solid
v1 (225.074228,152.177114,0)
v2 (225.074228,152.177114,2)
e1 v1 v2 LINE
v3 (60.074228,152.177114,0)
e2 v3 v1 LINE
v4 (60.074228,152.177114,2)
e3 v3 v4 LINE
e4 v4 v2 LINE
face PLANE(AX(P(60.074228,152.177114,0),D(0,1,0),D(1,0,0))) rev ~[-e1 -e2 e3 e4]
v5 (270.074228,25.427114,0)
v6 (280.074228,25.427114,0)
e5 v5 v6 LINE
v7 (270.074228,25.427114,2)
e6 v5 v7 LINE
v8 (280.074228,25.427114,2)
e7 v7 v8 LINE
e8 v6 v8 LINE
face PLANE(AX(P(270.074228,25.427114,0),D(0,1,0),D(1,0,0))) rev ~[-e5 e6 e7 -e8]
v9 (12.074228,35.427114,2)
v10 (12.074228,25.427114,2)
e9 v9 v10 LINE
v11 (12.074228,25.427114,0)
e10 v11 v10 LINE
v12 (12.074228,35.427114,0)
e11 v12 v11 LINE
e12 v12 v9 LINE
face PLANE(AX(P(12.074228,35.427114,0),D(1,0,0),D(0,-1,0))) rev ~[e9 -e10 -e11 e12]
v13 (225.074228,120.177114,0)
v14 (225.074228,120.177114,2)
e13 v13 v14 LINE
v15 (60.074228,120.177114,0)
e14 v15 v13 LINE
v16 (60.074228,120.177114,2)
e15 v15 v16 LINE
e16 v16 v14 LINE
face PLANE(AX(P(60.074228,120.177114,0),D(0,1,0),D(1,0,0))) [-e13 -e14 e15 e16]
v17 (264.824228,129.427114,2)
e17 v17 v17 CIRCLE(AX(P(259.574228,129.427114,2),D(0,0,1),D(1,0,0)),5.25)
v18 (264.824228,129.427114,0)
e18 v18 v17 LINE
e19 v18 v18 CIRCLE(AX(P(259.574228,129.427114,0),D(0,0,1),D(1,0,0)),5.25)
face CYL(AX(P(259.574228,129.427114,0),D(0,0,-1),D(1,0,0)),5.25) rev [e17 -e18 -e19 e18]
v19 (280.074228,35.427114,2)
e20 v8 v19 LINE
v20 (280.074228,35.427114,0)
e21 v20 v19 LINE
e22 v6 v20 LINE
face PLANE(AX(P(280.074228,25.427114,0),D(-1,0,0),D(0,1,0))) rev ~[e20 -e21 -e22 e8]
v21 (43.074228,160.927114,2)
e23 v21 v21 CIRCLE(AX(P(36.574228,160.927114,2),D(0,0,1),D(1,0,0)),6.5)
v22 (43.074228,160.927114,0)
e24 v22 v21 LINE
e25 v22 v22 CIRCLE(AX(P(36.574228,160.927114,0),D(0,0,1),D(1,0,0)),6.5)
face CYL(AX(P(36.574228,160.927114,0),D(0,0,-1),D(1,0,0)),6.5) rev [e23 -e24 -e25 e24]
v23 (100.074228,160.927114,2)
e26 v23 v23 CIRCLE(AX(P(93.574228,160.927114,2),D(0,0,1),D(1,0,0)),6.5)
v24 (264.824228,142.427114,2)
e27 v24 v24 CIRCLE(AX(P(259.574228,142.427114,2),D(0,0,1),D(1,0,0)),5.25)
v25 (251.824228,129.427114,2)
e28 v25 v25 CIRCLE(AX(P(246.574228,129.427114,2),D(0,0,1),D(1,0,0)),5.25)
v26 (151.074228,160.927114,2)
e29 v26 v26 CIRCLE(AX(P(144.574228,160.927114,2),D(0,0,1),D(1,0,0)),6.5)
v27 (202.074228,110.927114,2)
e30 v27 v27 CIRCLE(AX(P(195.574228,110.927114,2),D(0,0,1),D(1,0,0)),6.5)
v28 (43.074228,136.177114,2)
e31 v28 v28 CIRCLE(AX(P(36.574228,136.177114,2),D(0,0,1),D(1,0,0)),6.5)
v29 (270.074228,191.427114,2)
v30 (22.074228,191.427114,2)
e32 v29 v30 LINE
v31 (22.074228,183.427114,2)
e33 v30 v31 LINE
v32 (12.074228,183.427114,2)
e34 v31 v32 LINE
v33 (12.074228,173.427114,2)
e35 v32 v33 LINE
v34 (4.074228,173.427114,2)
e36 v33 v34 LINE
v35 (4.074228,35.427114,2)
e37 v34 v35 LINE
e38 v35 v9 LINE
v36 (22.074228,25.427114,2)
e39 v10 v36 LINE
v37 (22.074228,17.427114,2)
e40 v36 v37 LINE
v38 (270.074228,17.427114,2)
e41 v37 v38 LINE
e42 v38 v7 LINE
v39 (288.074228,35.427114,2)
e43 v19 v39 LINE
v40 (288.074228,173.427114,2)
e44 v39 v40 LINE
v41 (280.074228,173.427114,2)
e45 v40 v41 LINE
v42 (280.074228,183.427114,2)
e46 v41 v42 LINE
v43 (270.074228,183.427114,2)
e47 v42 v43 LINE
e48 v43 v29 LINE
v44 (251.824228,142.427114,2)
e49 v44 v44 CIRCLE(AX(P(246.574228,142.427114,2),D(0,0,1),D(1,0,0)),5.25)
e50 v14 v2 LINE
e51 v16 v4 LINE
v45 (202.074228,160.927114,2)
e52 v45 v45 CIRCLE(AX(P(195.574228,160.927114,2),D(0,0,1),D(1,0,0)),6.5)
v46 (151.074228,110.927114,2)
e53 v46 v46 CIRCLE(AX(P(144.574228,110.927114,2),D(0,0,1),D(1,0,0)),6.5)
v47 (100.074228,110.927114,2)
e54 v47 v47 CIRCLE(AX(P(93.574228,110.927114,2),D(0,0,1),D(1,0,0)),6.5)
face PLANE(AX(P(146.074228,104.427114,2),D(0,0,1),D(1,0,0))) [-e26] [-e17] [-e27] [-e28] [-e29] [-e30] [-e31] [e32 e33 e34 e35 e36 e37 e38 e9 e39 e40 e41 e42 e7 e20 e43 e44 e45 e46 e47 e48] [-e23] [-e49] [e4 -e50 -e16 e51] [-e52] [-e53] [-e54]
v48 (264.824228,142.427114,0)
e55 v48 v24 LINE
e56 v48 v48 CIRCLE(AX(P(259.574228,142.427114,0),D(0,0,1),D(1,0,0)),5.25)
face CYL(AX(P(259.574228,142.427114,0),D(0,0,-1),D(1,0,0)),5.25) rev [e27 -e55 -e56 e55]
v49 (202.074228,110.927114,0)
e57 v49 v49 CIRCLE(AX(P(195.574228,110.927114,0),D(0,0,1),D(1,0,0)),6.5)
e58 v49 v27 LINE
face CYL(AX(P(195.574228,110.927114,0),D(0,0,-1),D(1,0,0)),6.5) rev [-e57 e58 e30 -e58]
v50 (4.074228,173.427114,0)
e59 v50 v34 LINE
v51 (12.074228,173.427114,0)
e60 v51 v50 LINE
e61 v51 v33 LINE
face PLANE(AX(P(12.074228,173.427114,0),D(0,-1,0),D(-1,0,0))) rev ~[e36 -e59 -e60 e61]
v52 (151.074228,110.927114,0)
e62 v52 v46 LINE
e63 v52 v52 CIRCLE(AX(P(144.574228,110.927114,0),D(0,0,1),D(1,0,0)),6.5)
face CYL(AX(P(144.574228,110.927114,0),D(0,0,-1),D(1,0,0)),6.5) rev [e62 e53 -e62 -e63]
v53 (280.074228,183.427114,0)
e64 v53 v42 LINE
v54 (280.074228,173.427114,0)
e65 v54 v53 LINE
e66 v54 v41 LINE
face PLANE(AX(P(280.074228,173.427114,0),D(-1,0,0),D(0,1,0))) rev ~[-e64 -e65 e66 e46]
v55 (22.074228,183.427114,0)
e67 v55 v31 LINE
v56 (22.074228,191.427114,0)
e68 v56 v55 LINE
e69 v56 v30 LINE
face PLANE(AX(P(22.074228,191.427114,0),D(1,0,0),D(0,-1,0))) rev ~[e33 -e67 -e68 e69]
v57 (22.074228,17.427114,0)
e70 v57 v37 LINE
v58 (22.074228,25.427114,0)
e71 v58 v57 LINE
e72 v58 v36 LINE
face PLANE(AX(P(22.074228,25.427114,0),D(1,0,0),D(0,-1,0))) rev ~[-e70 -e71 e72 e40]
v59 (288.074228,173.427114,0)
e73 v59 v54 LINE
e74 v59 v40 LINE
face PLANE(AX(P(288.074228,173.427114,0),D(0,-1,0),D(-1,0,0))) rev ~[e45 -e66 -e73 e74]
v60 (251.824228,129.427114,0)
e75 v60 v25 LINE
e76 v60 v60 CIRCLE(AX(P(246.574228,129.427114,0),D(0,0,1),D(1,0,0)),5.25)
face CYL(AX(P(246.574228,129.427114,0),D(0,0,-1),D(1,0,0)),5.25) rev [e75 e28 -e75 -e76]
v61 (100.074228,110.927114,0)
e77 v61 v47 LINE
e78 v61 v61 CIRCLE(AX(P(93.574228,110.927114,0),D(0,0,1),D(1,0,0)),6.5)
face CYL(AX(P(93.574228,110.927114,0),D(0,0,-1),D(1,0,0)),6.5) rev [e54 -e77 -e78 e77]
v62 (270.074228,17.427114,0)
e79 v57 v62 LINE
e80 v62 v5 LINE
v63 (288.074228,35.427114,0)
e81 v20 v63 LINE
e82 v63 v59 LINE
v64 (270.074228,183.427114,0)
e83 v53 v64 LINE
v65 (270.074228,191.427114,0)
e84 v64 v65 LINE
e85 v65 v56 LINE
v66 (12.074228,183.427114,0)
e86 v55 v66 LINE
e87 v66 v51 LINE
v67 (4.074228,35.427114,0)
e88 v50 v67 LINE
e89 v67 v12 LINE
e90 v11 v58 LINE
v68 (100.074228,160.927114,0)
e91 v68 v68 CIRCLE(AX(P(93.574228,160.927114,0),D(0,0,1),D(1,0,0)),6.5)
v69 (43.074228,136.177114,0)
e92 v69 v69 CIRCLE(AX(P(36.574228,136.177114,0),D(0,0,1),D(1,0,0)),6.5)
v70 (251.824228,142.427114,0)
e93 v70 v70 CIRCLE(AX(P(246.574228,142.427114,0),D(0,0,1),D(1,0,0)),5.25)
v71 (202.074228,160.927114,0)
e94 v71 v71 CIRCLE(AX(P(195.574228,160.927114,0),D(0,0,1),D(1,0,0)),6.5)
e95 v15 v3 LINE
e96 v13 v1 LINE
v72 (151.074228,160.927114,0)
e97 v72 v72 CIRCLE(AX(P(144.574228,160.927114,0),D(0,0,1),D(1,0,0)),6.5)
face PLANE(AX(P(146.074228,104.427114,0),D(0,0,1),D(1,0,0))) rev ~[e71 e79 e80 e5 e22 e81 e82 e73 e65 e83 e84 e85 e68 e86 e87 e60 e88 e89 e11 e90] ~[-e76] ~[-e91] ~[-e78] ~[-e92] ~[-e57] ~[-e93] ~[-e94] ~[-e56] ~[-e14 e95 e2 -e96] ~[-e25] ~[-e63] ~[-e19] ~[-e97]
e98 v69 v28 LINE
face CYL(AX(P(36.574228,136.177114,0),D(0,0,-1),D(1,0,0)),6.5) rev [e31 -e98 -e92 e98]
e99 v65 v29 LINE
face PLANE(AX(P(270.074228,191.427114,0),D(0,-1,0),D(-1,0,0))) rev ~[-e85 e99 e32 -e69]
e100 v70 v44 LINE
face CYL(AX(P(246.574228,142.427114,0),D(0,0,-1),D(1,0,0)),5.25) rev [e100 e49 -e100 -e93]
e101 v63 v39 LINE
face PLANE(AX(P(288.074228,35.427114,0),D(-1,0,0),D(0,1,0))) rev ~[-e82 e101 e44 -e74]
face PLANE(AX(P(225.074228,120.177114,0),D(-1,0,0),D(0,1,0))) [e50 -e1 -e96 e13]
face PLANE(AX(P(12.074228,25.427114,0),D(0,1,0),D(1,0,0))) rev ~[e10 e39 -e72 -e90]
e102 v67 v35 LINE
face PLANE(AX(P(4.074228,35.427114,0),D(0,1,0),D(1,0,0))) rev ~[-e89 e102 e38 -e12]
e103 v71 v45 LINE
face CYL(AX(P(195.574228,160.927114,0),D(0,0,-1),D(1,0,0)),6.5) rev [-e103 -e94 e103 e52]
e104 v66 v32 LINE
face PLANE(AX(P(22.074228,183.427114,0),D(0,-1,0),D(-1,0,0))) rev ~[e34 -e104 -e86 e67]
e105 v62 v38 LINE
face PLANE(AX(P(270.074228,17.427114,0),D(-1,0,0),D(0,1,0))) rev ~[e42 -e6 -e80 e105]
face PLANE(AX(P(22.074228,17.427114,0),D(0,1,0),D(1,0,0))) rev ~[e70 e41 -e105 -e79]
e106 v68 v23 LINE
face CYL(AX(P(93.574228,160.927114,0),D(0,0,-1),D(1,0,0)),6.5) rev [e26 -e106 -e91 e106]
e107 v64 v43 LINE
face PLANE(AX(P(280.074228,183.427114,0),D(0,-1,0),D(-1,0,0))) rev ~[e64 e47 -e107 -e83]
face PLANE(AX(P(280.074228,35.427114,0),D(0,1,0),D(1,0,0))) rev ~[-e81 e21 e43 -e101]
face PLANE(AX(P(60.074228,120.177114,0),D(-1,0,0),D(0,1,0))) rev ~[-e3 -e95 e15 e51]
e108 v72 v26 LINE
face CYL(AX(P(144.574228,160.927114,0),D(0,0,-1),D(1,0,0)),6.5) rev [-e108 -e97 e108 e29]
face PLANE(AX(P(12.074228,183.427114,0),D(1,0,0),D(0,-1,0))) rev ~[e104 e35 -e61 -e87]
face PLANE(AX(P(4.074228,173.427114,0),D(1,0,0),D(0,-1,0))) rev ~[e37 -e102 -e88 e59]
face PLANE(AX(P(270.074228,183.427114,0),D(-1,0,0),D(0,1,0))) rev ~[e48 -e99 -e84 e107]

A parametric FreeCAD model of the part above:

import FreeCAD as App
import Part
import Sketcher

V = App.Vector
Q = App.Units.Quantity


def add_polygon(sketch, points):
    """Adds a closed chain of lines whose ends are joined by coincident constraints."""
    first, n = sketch.GeometryCount, len(points)
    for a, b in zip(points, points[1:] + points[:1]):
        sketch.addGeometry(Part.LineSegment(App.Vector(*a, 0), App.Vector(*b, 0)), False)
    for i in range(n):
        sketch.addConstraint(Sketcher.Constraint("Coincident", first + i, 2, first + (i + 1) % n, 1))

doc = App.newDocument("Part")
body = doc.addObject("PartDesign::Body", "Body")

sketch1 = body.newObject("Sketcher::SketchObject", "Sketch")
sketch1.AttachmentSupport = (doc.getObject("XY_Plane"), [""])
sketch1.MapMode = "FlatFace"
add_polygon(sketch1, [(270.074228, 25.427114), (280.074228, 25.427114), (280.074228, 35.427114), (288.074228, 35.427114), (288.074228, 173.427114), (280.074228, 173.427114), (280.074228, 183.427114), (270.074228, 183.427114), (270.074228, 191.427114), (22.074228, 191.427114), (22.074228, 183.427114), (12.074228, 183.427114), (12.074228, 173.427114), (4.074228, 173.427114), (4.074228, 35.427114), (12.074228, 35.427114), (12.074228, 25.427114), (22.074228, 25.427114), (22.074228, 17.427114), (270.074228, 17.427114)])
sketch1.addGeometry(Part.Circle(V(93.574228, 110.927114, 0), V(0, 0, 1), 6.5), False)
sketch1.addGeometry(Part.Circle(V(144.574228, 110.927114, 0), V(0, 0, 1), 6.5), False)
sketch1.addGeometry(Part.Circle(V(195.574228, 110.927114, 0), V(0, 0, 1), 6.5), False)
sketch1.addGeometry(Part.Circle(V(246.574228, 129.427114, 0), V(0, 0, 1), 5.25), False)
sketch1.addGeometry(Part.Circle(V(259.574228, 129.427114, 0), V(0, 0, 1), 5.25), False)
sketch1.addGeometry(Part.Circle(V(36.574228, 136.177114, 0), V(0, 0, 1), 6.5), False)
add_polygon(sketch1, [(225.074228, 120.177114), (60.074228, 120.177114), (60.074228, 152.177114), (225.074228, 152.177114)])
sketch1.addGeometry(Part.Circle(V(36.574228, 160.927114, 0), V(0, 0, 1), 6.5), False)
sketch1.addGeometry(Part.Circle(V(93.574228, 160.927114, 0), V(0, 0, 1), 6.5), False)
sketch1.addGeometry(Part.Circle(V(144.574228, 160.927114, 0), V(0, 0, 1), 6.5), False)
sketch1.addGeometry(Part.Circle(V(246.574228, 142.427114, 0), V(0, 0, 1), 5.25), False)
sketch1.addGeometry(Part.Circle(V(259.574228, 142.427114, 0), V(0, 0, 1), 5.25), False)
sketch1.addGeometry(Part.Circle(V(195.574228, 160.927114, 0), V(0, 0, 1), 6.5), False)
sketch1.addConstraint([
    Sketcher.Constraint("Horizontal", 0),
    Sketcher.Constraint("Vertical", 1),
    Sketcher.Constraint("Horizontal", 2),
    Sketcher.Constraint("Vertical", 3),
    Sketcher.Constraint("Horizontal", 4),
    Sketcher.Constraint("Vertical", 5),
    Sketcher.Constraint("Horizontal", 6),
    Sketcher.Constraint("Vertical", 7),
    Sketcher.Constraint("Horizontal", 8),
    Sketcher.Constraint("Vertical", 9),
    Sketcher.Constraint("Horizontal", 10),
    Sketcher.Constraint("Vertical", 11),
    Sketcher.Constraint("Horizontal", 12),
    Sketcher.Constraint("Vertical", 13),
    Sketcher.Constraint("Horizontal", 14),
    Sketcher.Constraint("Vertical", 15),
    Sketcher.Constraint("Horizontal", 16),
    Sketcher.Constraint("Vertical", 17),
    Sketcher.Constraint("Horizontal", 18),
    Sketcher.Constraint("Vertical", 19),
    Sketcher.Constraint("Horizontal", 26),
    Sketcher.Constraint("Vertical", 27),
    Sketcher.Constraint("Horizontal", 28),
    Sketcher.Constraint("Vertical", 29),
    Sketcher.Constraint("Equal", 20, 21),
    Sketcher.Constraint("Equal", 21, 22),
    Sketcher.Constraint("Equal", 23, 24),
    Sketcher.Constraint("Equal", 22, 25),
    Sketcher.Constraint("Equal", 25, 30),
    Sketcher.Constraint("Equal", 30, 31),
    Sketcher.Constraint("Equal", 31, 32),
    Sketcher.Constraint("Equal", 24, 33),
    Sketcher.Constraint("Equal", 33, 34),
    Sketcher.Constraint("Equal", 32, 35),
    Sketcher.Constraint("Horizontal", 20, 3, 21, 3),
    Sketcher.Constraint("Horizontal", 21, 3, 22, 3),
    Sketcher.Constraint("Horizontal", 23, 3, 24, 3),
    Sketcher.Constraint("Horizontal", 30, 3, 31, 3),
    Sketcher.Constraint("Horizontal", 31, 3, 32, 3),
    Sketcher.Constraint("Horizontal", 33, 3, 34, 3),
    Sketcher.Constraint("Horizontal", 32, 3, 35, 3),
    Sketcher.Constraint("Horizontal", 6, 2, 9, 2),
    Sketcher.Constraint("Horizontal", 4, 2, 11, 2),
    Sketcher.Constraint("Horizontal", 2, 2, 13, 2),
    Sketcher.Constraint("Horizontal", 0, 2, 15, 2),
    Sketcher.Constraint("Vertical", 25, 3, 30, 3),
    Sketcher.Constraint("Vertical", 20, 3, 31, 3),
    Sketcher.Constraint("Vertical", 21, 3, 32, 3),
    Sketcher.Constraint("Vertical", 23, 3, 33, 3),
    Sketcher.Constraint("Vertical", 24, 3, 34, 3),
    Sketcher.Constraint("Vertical", 22, 3, 35, 3),
    Sketcher.Constraint("Vertical", 1, 2, 4, 2),
    Sketcher.Constraint("Vertical", 11, 2, 14, 2),
    Sketcher.Constraint("Vertical", 9, 2, 16, 2),
    Sketcher.Constraint("Vertical", 7, 2, 18, 2),
    Sketcher.Constraint("Equal", 6, 10),
    Sketcher.Constraint("Equal", 4, 12),
    Sketcher.Constraint("Equal", 16, 1),
    Sketcher.Constraint("Equal", 1, 5),
    Sketcher.Constraint("Equal", 14, 7),
    Sketcher.Constraint("Equal", 9, 17),
    Sketcher.Constraint("Diameter", 20, Q("13 mm")),
    Sketcher.Constraint("Diameter", 23, Q("10.5 mm")),
    Sketcher.Constraint("DistanceX", 0, 1, 0, 2, Q("10 mm")),
    Sketcher.Constraint("DistanceX", 2, 1, 2, 2, Q("8 mm")),
    Sketcher.Constraint("DistanceX", 8, 2, 8, 1, Q("248 mm")),
    Sketcher.Constraint("DistanceX", 26, 2, 26, 1, Q("165 mm")),
    Sketcher.Constraint("DistanceY", 3, 1, 3, 2, Q("138 mm")),
    Sketcher.Constraint("DistanceY", 27, 1, 27, 2, Q("32 mm")),
    Sketcher.Constraint("DistanceX", 20, 3, 21, 3, Q("51 mm")),
    Sketcher.Constraint("DistanceX", 21, 3, 22, 3, Q("51 mm")),
    Sketcher.Constraint("DistanceX", 22, 3, 23, 3, Q("51 mm")),
    Sketcher.Constraint("DistanceX", 23, 3, 24, 3, Q("13 mm")),
    Sketcher.Constraint("DistanceX", 25, 3, 20, 3, Q("57 mm")),
    Sketcher.Constraint("DistanceY", 20, 3, 30, 3, Q("50 mm")),
    Sketcher.Constraint("DistanceY", 23, 3, 33, 3, Q("13 mm")),
    Sketcher.Constraint("DistanceY", 0, 2, 24, 3, Q("104 mm")),
    Sketcher.Constraint("DistanceY", 26, 2, 25, 3, Q("16 mm")),
    Sketcher.Constraint("DistanceX", 11, 2, 26, 2, Q("48 mm")),
    Sketcher.Constraint("DistanceY", 22, 3, 23, 3, Q("18.5 mm")),
    Sketcher.Constraint("DistanceX", 24, 3, 0, 2, Q("20.5 mm")),
    Sketcher.Constraint("DistanceY", 20, 3, 25, 3, Q("25.25 mm")),
    Sketcher.Constraint("DistanceX", -1, 1, 20, 3, Q("93.574228 mm")),
    Sketcher.Constraint("DistanceY", -1, 1, 20, 3, Q("110.927114 mm")),
])
pad1 = body.newObject("PartDesign::Pad", "Pad")
pad1.Profile = sketch1
pad1.Length = 2

doc.recompute()
